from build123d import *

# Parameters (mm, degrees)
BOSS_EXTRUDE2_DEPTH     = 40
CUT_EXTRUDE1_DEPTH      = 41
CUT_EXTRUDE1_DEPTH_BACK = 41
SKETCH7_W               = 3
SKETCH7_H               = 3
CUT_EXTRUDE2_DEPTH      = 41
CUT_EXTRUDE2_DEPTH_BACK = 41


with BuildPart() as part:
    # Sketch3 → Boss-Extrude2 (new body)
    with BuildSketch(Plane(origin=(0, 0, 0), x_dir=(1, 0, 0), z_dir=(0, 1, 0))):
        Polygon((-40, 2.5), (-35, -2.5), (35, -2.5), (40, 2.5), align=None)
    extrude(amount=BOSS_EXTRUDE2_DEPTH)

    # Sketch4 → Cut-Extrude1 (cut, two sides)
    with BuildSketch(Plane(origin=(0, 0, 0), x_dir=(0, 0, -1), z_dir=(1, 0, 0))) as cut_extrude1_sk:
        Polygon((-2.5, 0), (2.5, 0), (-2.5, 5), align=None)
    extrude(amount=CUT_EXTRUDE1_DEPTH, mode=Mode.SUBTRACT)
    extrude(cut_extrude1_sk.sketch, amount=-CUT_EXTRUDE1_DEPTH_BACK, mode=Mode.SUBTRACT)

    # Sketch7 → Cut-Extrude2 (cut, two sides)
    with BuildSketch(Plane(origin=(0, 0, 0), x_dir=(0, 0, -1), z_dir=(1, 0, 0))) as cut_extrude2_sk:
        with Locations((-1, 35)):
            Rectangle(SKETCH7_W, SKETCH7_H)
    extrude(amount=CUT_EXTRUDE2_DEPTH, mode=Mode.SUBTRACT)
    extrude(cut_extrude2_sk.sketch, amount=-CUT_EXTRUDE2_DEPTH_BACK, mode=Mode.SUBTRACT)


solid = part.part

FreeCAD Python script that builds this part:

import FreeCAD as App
import Part
import Sketcher

V = App.Vector

doc = App.newDocument("Part")
params = doc.addObject("Spreadsheet::Sheet", "Params")
for row, (alias, value) in enumerate([
    ("sketch1_width", "70 mm"),
    ("sketch1_width2", "80 mm"),
    ("pad1_length", "40 mm"),
    ("sketch2_width", "5 mm"),
    ("sketch3_width", "3 mm"),
], start=1):
    params.set(f"A{row}", alias)
    params.set(f"B{row}", "=" + value)
    params.setAlias(f"B{row}", alias)

body = doc.addObject("PartDesign::Body", "Body")

# Sketch on XZ plane
sketch1 = body.newObject("Sketcher::SketchObject", "Sketch")
sketch1.AttachmentSupport = (doc.getObject("XZ_Plane"), [""])
sketch1.MapMode = "FlatFace"
sketch1.addGeometry(Part.LineSegment(V(-40, -2, 0), V(-35, 2, 0)), False)
sketch1.addGeometry(Part.LineSegment(V(-35, 2, 0), V(35, 2, 0)), False)
sketch1.addGeometry(Part.LineSegment(V(35, 2, 0), V(40, -2, 0)), False)
sketch1.addGeometry(Part.LineSegment(V(40, -2, 0), V(-40, -2, 0)), False)
sketch1.addConstraint(Sketcher.Constraint("Coincident", 0, 2, 1, 1))
sketch1.addConstraint(Sketcher.Constraint("Coincident", 1, 2, 2, 1))
sketch1.addConstraint(Sketcher.Constraint("Coincident", 2, 2, 3, 1))
sketch1.addConstraint(Sketcher.Constraint("Coincident", 3, 2, 0, 1))
sketch1.addConstraint(Sketcher.Constraint("Horizontal", 1))
sketch1.addConstraint(Sketcher.Constraint("Horizontal", 3))
sketch1.addConstraint(Sketcher.Constraint("Perpendicular", 0, 2))
sketch1.addConstraint(Sketcher.Constraint("Equal", 0, 2))
sketch1.addConstraint(Sketcher.Constraint("DistanceX", 1, 1, 1, 2, 70.0))
sketch1.addConstraint(Sketcher.Constraint("DistanceX", 3, 2, 3, 1, 80.0))
sketch1.addConstraint(Sketcher.Constraint("DistanceX", 0, 2, -1, 1, 35.0))
sketch1.addConstraint(Sketcher.Constraint("DistanceY", -1, 1, 0, 2, 2.5))
sketch1.setExpression("Constraints[8]", "Params.sketch1_width")
sketch1.setExpression("Constraints[9]", "Params.sketch1_width2")
pad1 = body.newObject("PartDesign::Pad", "Pad")
pad1.Profile = sketch1
pad1.setExpression("Length", "Params.pad1_length")
pad1.Reversed = True

# Sketch on YZ plane
sketch2 = body.newObject("Sketcher::SketchObject", "Sketch001")
sketch2.AttachmentSupport = (doc.getObject("YZ_Plane"), [""])
sketch2.MapMode = "FlatFace"
sketch2.addGeometry(Part.LineSegment(V(0, 2, 0), V(0, -2, 0)), False)
sketch2.addGeometry(Part.LineSegment(V(0, -2, 0), V(5, 2, 0)), False)
sketch2.addGeometry(Part.LineSegment(V(5, 2, 0), V(0, 2, 0)), False)
sketch2.addConstraint(Sketcher.Constraint("Coincident", 0, 2, 1, 1))
sketch2.addConstraint(Sketcher.Constraint("Coincident", 1, 2, 2, 1))
sketch2.addConstraint(Sketcher.Constraint("Coincident", 2, 2, 0, 1))
sketch2.addConstraint(Sketcher.Constraint("Vertical", 0))
sketch2.addConstraint(Sketcher.Constraint("Horizontal", 2))
sketch2.addConstraint(Sketcher.Constraint("Symmetric", 0, 2, 2, 2, -1, 1))
sketch2.addConstraint(Sketcher.Constraint("Equal", 2, 0))
sketch2.addConstraint(Sketcher.Constraint("DistanceX", 2, 2, 2, 1, 5.0))
sketch2.setExpression("Constraints[7]", "Params.sketch2_width")
pocket1 = body.newObject("PartDesign::Pocket", "Pocket")
pocket1.Profile = sketch2
pocket1.Type = "ThroughAll"
pocket1.Midplane = True

# Sketch on YZ plane
sketch3 = body.newObject("Sketcher::SketchObject", "Sketch002")
sketch3.AttachmentSupport = (doc.getObject("YZ_Plane"), [""])
sketch3.MapMode = "FlatFace"
sketch3.addGeometry(Part.LineSegment(V(36.5, 2.5, 0), V(33.5, 2.5, 0)), False)
sketch3.addGeometry(Part.LineSegment(V(33.5, 2.5, 0), V(33.5, -0.5, 0)), False)
sketch3.addGeometry(Part.LineSegment(V(33.5, -0.5, 0), V(36.5, -0.5, 0)), False)
sketch3.addGeometry(Part.LineSegment(V(36.5, -0.5, 0), V(36.5, 2.5, 0)), False)
sketch3.addConstraint(Sketcher.Constraint("Coincident", 0, 2, 1, 1))
sketch3.addConstraint(Sketcher.Constraint("Coincident", 1, 2, 2, 1))
sketch3.addConstraint(Sketcher.Constraint("Coincident", 2, 2, 3, 1))
sketch3.addConstraint(Sketcher.Constraint("Coincident", 3, 2, 0, 1))
sketch3.addConstraint(Sketcher.Constraint("Horizontal", 0))
sketch3.addConstraint(Sketcher.Constraint("Vertical", 1))
sketch3.addConstraint(Sketcher.Constraint("Horizontal", 2))
sketch3.addConstraint(Sketcher.Constraint("Vertical", 3))
sketch3.addConstraint(Sketcher.Constraint("Equal", 2, 1))
sketch3.addConstraint(Sketcher.Constraint("DistanceX", 0, 2, 0, 1, 3.0))
sketch3.addConstraint(Sketcher.Constraint("DistanceX", -1, 1, 0, 2, 33.5))
sketch3.addConstraint(Sketcher.Constraint("DistanceY", -1, 1, 0, 2, 2.5))
sketch3.setExpression("Constraints[9]", "Params.sketch3_width")
pocket2 = body.newObject("PartDesign::Pocket", "Pocket001")
pocket2.Profile = sketch3
pocket2.Type = "ThroughAll"
pocket2.Midplane = True

doc.recompute()
